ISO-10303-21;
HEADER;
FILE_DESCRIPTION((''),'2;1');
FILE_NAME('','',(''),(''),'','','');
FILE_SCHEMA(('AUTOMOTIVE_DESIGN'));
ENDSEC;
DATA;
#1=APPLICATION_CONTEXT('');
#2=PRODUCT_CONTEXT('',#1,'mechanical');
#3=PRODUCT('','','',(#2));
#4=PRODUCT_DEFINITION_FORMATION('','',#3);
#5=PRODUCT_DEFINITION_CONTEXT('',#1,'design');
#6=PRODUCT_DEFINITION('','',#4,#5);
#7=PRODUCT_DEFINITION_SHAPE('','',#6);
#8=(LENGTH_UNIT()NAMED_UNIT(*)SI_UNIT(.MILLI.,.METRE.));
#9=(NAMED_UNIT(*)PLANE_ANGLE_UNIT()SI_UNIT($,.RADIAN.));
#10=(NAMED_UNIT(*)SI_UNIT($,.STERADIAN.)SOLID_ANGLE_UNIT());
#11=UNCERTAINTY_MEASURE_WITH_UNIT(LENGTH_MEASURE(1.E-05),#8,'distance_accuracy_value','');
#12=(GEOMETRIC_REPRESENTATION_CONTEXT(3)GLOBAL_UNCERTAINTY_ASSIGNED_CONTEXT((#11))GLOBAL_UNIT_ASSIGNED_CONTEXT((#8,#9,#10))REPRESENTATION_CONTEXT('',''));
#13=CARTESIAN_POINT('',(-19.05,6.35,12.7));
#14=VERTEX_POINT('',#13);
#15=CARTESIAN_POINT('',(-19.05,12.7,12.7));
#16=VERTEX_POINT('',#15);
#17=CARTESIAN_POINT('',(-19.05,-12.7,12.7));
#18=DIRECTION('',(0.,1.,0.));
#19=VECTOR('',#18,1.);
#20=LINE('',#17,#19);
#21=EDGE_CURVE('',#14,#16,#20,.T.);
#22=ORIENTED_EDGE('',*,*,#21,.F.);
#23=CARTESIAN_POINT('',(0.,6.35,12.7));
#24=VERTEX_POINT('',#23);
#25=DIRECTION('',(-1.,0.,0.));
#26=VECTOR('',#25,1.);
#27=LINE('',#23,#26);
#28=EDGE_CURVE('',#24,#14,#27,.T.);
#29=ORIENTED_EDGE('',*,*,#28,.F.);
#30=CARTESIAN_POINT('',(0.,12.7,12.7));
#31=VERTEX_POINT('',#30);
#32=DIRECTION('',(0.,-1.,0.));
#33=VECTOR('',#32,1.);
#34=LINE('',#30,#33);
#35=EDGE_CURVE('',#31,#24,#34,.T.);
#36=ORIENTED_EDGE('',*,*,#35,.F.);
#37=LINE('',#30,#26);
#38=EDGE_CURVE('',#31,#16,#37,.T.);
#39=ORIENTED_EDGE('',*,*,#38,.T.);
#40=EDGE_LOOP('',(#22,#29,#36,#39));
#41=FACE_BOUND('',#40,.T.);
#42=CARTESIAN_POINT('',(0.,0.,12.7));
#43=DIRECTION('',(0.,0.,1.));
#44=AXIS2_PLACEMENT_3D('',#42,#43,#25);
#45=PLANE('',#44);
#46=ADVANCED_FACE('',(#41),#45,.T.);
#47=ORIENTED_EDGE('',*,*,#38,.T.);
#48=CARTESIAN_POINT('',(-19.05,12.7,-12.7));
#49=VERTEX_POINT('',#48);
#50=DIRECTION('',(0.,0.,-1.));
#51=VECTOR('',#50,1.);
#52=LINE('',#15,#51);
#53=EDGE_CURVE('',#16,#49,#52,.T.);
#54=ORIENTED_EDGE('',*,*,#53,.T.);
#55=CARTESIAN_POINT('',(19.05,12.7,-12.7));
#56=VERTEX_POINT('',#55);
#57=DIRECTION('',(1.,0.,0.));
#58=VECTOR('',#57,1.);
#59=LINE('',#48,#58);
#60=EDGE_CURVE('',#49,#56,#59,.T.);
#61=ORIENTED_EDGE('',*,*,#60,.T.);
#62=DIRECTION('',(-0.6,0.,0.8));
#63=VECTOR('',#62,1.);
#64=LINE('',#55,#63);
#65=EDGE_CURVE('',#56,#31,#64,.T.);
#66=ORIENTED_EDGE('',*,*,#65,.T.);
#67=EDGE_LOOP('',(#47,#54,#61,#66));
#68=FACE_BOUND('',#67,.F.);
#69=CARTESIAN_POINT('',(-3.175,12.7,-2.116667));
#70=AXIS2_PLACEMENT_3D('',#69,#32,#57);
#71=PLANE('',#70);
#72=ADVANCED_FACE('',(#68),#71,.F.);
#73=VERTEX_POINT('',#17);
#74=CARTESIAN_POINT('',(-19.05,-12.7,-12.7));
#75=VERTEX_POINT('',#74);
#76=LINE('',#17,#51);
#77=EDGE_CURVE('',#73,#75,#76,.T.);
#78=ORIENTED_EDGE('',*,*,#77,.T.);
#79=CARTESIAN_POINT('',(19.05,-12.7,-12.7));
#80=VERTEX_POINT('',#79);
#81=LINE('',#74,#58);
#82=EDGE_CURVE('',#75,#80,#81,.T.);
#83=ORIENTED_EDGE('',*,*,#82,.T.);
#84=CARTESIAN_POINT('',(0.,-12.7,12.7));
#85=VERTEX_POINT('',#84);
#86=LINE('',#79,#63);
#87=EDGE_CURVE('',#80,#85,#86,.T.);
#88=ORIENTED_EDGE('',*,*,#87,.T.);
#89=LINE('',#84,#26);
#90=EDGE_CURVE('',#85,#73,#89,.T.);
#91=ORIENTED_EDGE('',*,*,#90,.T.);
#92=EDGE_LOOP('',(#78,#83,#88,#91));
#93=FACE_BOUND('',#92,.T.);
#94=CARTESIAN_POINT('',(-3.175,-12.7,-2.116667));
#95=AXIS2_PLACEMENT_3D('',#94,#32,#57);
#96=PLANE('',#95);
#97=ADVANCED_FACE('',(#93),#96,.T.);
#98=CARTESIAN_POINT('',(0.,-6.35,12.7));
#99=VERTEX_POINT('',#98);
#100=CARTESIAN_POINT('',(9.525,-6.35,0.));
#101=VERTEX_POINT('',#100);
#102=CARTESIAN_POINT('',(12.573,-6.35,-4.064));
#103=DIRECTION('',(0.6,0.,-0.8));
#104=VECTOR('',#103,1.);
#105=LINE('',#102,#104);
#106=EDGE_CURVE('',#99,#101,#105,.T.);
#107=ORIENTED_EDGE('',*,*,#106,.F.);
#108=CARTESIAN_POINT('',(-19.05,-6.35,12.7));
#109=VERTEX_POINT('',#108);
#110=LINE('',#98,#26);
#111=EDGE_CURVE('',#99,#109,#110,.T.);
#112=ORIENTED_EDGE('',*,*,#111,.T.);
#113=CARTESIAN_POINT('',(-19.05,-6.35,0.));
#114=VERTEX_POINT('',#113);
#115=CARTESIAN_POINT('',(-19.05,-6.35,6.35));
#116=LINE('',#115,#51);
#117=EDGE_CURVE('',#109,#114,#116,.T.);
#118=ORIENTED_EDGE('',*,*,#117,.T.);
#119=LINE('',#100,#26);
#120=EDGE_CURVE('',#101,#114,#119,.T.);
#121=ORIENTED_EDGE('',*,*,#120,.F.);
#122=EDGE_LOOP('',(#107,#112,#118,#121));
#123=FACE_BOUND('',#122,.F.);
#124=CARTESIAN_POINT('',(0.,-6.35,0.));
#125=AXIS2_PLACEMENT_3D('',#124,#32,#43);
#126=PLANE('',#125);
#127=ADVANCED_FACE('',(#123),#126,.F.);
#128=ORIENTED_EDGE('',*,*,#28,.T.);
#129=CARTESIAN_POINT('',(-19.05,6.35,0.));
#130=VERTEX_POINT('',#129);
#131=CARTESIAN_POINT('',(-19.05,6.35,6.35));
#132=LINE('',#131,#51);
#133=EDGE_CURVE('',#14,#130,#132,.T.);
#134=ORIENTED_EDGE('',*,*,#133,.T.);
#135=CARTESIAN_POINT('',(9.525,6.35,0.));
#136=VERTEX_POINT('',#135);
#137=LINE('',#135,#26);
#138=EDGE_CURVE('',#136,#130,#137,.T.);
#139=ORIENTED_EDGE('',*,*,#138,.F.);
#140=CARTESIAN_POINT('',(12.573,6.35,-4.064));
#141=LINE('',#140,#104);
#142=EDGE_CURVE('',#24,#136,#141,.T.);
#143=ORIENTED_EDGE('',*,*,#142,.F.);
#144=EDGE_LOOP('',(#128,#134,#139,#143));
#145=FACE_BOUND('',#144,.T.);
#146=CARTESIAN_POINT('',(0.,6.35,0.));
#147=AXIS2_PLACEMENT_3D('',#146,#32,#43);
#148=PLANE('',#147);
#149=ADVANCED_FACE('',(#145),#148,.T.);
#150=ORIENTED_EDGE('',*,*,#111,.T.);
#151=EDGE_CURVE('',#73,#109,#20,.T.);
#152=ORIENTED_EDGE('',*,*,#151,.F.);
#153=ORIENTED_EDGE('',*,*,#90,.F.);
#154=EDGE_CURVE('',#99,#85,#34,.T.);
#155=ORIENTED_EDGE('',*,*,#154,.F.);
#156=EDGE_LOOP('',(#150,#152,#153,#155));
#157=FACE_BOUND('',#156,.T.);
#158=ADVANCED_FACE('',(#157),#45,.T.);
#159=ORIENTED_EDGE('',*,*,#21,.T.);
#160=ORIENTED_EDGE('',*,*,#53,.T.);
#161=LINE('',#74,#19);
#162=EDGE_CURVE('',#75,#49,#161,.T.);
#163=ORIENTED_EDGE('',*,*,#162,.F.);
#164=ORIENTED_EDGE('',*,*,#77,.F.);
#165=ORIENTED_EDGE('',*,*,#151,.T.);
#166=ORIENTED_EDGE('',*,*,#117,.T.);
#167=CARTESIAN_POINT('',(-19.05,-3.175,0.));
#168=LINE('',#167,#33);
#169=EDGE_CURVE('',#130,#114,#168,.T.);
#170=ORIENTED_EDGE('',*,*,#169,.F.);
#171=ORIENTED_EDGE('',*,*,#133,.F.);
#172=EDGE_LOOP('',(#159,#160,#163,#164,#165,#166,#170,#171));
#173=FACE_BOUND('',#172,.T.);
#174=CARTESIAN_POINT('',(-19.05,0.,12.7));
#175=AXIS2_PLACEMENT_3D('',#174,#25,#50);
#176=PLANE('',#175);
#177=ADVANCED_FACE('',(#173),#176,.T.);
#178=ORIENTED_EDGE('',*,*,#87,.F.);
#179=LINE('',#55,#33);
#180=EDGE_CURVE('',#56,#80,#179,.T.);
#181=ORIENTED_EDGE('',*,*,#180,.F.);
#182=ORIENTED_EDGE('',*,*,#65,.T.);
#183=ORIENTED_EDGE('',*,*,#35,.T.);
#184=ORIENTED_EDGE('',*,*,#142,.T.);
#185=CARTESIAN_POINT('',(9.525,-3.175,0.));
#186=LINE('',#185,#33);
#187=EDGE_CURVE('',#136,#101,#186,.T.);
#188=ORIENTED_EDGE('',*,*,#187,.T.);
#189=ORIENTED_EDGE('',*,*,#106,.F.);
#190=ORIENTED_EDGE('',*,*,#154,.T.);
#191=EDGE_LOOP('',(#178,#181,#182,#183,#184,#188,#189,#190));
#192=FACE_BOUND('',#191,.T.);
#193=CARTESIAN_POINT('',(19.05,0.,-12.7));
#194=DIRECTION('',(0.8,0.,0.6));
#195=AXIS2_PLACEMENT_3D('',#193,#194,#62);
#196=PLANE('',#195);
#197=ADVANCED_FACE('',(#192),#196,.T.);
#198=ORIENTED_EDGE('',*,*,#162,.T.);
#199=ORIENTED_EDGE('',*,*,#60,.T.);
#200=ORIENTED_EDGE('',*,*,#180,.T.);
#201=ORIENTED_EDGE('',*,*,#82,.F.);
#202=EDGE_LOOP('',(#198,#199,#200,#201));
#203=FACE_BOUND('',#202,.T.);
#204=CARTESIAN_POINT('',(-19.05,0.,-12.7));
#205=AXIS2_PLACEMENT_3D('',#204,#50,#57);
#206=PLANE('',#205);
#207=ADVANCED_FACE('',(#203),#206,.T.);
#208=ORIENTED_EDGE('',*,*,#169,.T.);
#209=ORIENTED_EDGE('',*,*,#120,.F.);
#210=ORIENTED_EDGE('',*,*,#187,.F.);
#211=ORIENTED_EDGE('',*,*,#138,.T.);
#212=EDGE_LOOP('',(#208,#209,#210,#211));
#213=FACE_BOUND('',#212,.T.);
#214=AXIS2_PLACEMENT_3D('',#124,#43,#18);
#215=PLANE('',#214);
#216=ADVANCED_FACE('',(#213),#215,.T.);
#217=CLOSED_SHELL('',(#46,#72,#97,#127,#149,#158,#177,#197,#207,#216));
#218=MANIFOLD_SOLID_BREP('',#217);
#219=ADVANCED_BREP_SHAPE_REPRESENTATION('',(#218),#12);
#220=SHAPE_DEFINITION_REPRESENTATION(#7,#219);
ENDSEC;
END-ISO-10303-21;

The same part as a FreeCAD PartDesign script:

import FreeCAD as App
import Part
import Sketcher
Q = App.Units.Quantity


def add_polygon(sketch, points):
    """Adds a closed chain of lines whose ends are joined by coincident constraints."""
    first, n = sketch.GeometryCount, len(points)
    for a, b in zip(points, points[1:] + points[:1]):
        sketch.addGeometry(Part.LineSegment(App.Vector(*a, 0), App.Vector(*b, 0)), False)
    for i in range(n):
        sketch.addConstraint(Sketcher.Constraint("Coincident", first + i, 2, first + (i + 1) % n, 1))

doc = App.newDocument("Part")
params = doc.addObject("Spreadsheet::Sheet", "Params")
for row, (alias, value) in enumerate([
    ("sketch1_height", "1 in"),
    ("sketch1_width", "1.5 in"),
    ("pad1_length", "1 in"),
    ("sketch2_width", "0.5 in"),
], start=1):
    params.set(f"A{row}", alias)
    params.set(f"B{row}", "=" + value)
    params.setAlias(f"B{row}", alias)

body = doc.addObject("PartDesign::Body", "Body")

# Sketch on XZ plane
sketch1 = doc.addObject("Sketcher::SketchObject", "Sketch")
body.addObject(sketch1)
sketch1.AttachmentSupport = (doc.XZ_Plane, [""])
sketch1.MapMode = "FlatFace"
add_polygon(sketch1, [(-19.05, -12.7), (19.05, -12.7), (0, 12.7), (-19.05, 12.7)])  # lines 0-3
sketch1.addConstraint([
    Sketcher.Constraint("Horizontal", 0),
    Sketcher.Constraint("Horizontal", 2),
    Sketcher.Constraint("Vertical", 3),
    Sketcher.Constraint("Symmetric", 0, 2, 2, 2, -1, 1),
    Sketcher.Constraint("PointOnObject", 1, 2, -2),
    Sketcher.Constraint("DistanceY", 3, 2, 3, 1, Q("1 in")),
    Sketcher.Constraint("DistanceX", 0, 1, 0, 2, Q("1.5 in")),
])
sketch1.setExpression("Constraints[9]", "Params.sketch1_height")
sketch1.setExpression("Constraints[10]", "Params.sketch1_width")
pad1 = doc.addObject("PartDesign::Pad", "Pad")
body.addObject(pad1)
pad1.Profile = sketch1
pad1.setExpression("Length", "Params.pad1_length")
pad1.Midplane = True

# Sketch on YZ plane
sketch2 = doc.addObject("Sketcher::SketchObject", "Sketch001")
body.addObject(sketch2)
sketch2.AttachmentSupport = (doc.YZ_Plane, [""])
sketch2.MapMode = "FlatFace"
add_polygon(sketch2, [(-6.35, 12.7), (-6.35, 0), (6.35, 0), (6.35, 12.7)])  # lines 0-3
sketch2.addConstraint([
    Sketcher.Constraint("Vertical", 0),
    Sketcher.Constraint("Horizontal", 1),
    Sketcher.Constraint("Vertical", 2),
    Sketcher.Constraint("Horizontal", 3),
    Sketcher.Constraint("Symmetric", 0, 2, 1, 2, -1, 1),
    Sketcher.Constraint("Equal", 3, 0),
    Sketcher.Constraint("DistanceX", 1, 1, 1, 2, Q("0.5 in")),
])
sketch2.setExpression("Constraints[10]", "Params.sketch2_width")
pocket1 = doc.addObject("PartDesign::Pocket", "Pocket")
body.addObject(pocket1)
pocket1.Profile = sketch2
pocket1.Type = "ThroughAll"
pocket1.Midplane = True

doc.recompute()
